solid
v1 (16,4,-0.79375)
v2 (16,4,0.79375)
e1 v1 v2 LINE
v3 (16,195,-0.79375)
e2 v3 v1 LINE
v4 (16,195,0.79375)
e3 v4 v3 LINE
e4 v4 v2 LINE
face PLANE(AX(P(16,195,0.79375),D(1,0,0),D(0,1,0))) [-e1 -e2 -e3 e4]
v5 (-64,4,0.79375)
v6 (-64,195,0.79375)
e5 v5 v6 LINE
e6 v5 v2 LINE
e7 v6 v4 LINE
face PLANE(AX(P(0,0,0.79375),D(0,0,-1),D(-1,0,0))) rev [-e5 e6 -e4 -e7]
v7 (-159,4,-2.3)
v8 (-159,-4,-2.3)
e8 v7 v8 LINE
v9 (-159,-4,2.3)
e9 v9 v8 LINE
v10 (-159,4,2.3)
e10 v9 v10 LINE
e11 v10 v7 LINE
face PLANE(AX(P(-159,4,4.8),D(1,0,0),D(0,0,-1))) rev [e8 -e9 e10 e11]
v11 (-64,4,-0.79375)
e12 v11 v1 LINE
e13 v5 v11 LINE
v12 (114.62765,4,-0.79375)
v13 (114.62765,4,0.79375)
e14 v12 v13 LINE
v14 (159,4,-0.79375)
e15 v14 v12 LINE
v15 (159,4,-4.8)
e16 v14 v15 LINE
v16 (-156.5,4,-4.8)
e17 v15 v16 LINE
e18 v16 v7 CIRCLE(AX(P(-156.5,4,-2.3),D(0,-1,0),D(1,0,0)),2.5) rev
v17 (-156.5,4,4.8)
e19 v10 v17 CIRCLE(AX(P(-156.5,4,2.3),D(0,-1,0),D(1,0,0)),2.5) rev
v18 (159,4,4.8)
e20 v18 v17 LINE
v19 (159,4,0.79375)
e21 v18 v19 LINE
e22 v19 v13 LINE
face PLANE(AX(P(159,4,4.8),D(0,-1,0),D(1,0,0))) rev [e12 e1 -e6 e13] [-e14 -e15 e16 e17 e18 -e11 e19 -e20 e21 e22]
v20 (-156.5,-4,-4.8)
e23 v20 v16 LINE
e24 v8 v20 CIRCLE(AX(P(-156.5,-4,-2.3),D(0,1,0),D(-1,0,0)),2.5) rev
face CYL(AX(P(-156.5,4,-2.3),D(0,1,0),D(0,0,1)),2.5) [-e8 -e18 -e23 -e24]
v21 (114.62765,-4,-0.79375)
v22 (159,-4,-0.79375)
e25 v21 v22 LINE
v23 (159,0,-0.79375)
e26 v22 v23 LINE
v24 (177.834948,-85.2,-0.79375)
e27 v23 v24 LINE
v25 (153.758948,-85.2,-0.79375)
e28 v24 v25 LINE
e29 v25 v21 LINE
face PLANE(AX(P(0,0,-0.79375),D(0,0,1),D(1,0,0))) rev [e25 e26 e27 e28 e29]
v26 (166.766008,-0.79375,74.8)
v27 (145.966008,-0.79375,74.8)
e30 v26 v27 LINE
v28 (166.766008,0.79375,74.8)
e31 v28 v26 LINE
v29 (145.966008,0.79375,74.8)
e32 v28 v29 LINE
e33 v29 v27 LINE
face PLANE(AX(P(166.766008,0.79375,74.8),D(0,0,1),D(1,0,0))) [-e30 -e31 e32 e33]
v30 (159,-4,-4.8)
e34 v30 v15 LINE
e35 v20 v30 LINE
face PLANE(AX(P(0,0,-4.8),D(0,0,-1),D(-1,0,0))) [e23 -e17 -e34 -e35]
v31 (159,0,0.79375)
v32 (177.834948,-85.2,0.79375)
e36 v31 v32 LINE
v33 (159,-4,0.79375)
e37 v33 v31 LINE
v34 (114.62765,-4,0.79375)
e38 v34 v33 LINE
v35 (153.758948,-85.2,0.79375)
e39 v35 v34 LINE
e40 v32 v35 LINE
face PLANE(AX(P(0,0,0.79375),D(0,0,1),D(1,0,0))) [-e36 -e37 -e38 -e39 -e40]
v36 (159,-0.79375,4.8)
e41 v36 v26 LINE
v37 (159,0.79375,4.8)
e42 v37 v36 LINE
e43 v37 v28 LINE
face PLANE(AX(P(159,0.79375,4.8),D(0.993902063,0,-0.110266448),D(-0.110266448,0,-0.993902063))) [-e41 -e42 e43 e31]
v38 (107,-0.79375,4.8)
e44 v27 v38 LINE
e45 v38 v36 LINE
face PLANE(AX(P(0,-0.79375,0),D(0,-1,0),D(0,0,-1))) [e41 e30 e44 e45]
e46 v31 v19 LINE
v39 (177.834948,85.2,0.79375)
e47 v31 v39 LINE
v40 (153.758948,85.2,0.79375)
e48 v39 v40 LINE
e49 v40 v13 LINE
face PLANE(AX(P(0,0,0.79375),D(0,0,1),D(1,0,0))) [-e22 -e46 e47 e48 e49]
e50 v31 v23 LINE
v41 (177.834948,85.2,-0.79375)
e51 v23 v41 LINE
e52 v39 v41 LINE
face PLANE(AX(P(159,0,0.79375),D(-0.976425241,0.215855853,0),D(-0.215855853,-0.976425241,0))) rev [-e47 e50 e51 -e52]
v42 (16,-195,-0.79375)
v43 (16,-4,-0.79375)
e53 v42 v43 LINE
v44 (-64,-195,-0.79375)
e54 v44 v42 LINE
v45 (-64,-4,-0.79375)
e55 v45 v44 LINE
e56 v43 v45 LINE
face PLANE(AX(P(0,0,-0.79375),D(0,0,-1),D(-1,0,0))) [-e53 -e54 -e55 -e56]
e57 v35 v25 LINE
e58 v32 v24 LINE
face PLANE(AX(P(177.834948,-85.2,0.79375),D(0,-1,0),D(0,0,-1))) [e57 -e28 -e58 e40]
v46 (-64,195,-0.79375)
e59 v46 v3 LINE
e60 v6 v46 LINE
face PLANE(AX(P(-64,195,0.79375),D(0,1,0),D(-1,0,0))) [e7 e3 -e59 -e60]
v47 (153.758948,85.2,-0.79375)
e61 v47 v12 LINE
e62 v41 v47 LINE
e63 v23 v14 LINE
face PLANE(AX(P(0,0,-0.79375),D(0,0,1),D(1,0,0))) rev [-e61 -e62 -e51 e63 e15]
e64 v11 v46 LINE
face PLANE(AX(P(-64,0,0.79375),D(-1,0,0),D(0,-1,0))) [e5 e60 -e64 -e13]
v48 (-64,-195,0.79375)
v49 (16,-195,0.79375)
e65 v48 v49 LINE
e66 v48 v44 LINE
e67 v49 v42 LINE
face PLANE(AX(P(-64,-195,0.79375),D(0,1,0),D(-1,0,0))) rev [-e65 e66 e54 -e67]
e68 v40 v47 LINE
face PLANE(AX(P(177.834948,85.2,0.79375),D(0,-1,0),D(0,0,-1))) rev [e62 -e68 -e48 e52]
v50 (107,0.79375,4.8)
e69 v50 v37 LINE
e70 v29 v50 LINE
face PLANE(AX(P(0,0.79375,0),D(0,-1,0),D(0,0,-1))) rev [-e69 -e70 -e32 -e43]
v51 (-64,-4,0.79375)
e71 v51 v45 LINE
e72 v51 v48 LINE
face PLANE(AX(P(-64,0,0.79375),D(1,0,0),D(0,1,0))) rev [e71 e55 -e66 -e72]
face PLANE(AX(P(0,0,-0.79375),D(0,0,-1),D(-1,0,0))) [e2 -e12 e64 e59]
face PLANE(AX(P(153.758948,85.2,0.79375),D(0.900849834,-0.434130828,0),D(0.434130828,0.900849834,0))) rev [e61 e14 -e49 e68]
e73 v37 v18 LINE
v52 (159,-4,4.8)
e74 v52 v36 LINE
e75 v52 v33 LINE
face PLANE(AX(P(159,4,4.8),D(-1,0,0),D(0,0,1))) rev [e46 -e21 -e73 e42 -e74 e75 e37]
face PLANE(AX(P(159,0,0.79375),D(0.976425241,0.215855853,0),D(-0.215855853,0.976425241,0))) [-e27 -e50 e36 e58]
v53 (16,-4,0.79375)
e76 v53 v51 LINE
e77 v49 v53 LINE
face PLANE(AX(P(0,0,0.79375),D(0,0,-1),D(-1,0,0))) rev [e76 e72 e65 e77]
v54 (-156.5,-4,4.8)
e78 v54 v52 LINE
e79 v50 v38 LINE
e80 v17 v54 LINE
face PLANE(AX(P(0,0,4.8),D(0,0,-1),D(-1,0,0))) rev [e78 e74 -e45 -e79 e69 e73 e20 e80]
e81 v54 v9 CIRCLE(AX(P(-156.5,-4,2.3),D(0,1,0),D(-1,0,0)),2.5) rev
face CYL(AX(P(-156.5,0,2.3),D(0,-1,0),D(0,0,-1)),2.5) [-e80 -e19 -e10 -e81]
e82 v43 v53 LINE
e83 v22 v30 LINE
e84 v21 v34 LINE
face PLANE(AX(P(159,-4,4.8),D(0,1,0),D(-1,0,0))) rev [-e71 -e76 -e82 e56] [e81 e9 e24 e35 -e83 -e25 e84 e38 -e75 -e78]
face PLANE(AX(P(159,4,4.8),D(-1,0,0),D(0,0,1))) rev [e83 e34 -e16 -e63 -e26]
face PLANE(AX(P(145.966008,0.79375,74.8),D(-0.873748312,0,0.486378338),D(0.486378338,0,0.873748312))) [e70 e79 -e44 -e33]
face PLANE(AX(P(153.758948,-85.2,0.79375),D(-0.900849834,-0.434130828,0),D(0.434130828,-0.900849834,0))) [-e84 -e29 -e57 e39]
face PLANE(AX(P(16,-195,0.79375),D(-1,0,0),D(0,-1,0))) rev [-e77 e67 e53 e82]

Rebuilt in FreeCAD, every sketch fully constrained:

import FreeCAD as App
import Part
import Sketcher
from FreeCAD import Vector
Q = App.Units.Quantity


def edges_at(feature, points):
    """Names of the edges that pass closest to the given points."""
    edges = feature.Shape.Edges
    near = lambda p: min(range(len(edges)), key=lambda i: edges[i].distToShape(Part.Vertex(*p))[0])
    return sorted({f"Edge{near(p) + 1}" for p in points})

doc = App.newDocument("Part")
body = doc.addObject("PartDesign::Body", "Body")

# Sketch on XY plane
sketch1 = body.newObject("Sketcher::SketchObject", "Sketch")
sketch1.AttachmentSupport = (doc.getObject("XY_Plane"), [""])
sketch1.MapMode = "FlatFace"
sketch1.addGeometry([
    Part.LineSegment(Vector(-159, 4, 0), Vector(-159, -4, 0)),
    Part.LineSegment(Vector(-159, -4, 0), Vector(159, -4, 0)),
    Part.LineSegment(Vector(159, -4, 0), Vector(159, 4, 0)),
    Part.LineSegment(Vector(159, 4, 0), Vector(-159, 4, 0)),
], False)
sketch1.addConstraint([
    Sketcher.Constraint("Coincident", 0, 2, 1, 1),
    Sketcher.Constraint("Coincident", 1, 2, 2, 1),
    Sketcher.Constraint("Coincident", 2, 2, 3, 1),
    Sketcher.Constraint("Coincident", 3, 2, 0, 1),
    Sketcher.Constraint("Vertical", 0),
    Sketcher.Constraint("Horizontal", 1),
    Sketcher.Constraint("Vertical", 2),
    Sketcher.Constraint("Horizontal", 3),
    Sketcher.Constraint("Symmetric", 0, 2, 2, 2, -1, 1),
    Sketcher.Constraint("DistanceX", 1, 1, 1, 2, 318.0),
    Sketcher.Constraint("DistanceY", 0, 2, 0, 1, 8.0),
])
pad1 = body.newObject("PartDesign::Pad", "Pad")
pad1.Profile = sketch1
pad1.Length = 9.6
pad1.Midplane = True

# Sketch on XY plane
sketch2 = body.newObject("Sketcher::SketchObject", "Sketch001")
sketch2.AttachmentSupport = (doc.getObject("XY_Plane"), [""])
sketch2.MapMode = "FlatFace"
sketch2.addGeometry([
    Part.LineSegment(Vector(-64, 195, 0), Vector(-64, 0, 0)),
    Part.LineSegment(Vector(-64, 0, 0), Vector(16, 0, 0)),
    Part.LineSegment(Vector(16, 0, 0), Vector(16, 195, 0)),
    Part.LineSegment(Vector(16, 195, 0), Vector(-64, 195, 0)),
], False)
sketch2.addConstraint([
    Sketcher.Constraint("Coincident", 0, 2, 1, 1),
    Sketcher.Constraint("Coincident", 1, 2, 2, 1),
    Sketcher.Constraint("Coincident", 2, 2, 3, 1),
    Sketcher.Constraint("Coincident", 3, 2, 0, 1),
    Sketcher.Constraint("Vertical", 0),
    Sketcher.Constraint("Horizontal", 1),
    Sketcher.Constraint("Vertical", 2),
    Sketcher.Constraint("Horizontal", 3),
    Sketcher.Constraint("PointOnObject", 0, 2, -1),
    Sketcher.Constraint("DistanceX", 1, 1, 1, 2, 80.0),
    Sketcher.Constraint("DistanceY", 0, 2, 0, 1, 195.0),
    Sketcher.Constraint("DistanceX", 0, 2, -1, 1, 64.0),
])
pad2 = body.newObject("PartDesign::Pad", "Pad001")
pad2.Profile = sketch2
pad2.Length = 1.5875
pad2.Midplane = True
doc.recompute()

mirrored = body.newObject("PartDesign::Mirrored", "Mirrored")
mirrored.Originals = [pad2]
mirrored.MirrorPlane = (doc.getObject("XZ_Plane"), [""])
body.Tip = mirrored

# Sketch on XZ plane
sketch3 = body.newObject("Sketcher::SketchObject", "Sketch002")
sketch3.AttachmentSupport = (doc.getObject("XZ_Plane"), [""])
sketch3.MapMode = "FlatFace"
sketch3.addGeometry([
    Part.LineSegment(Vector(167, 75, 0), Vector(159, 5, 0)),
    Part.LineSegment(Vector(159, 5, 0), Vector(107, 5, 0)),
    Part.LineSegment(Vector(107, 5, 0), Vector(146, 75, 0)),
    Part.LineSegment(Vector(146, 75, 0), Vector(167, 75, 0)),
], False)
sketch3.addConstraint([
    Sketcher.Constraint("Coincident", 0, 2, 1, 1),
    Sketcher.Constraint("Coincident", 1, 2, 2, 1),
    Sketcher.Constraint("Coincident", 2, 2, 3, 1),
    Sketcher.Constraint("Coincident", 3, 2, 0, 1),
    Sketcher.Constraint("Horizontal", 1),
    Sketcher.Constraint("Horizontal", 3),
    Sketcher.Constraint("DistanceX", 1, 2, 1, 1, 52.0),
    Sketcher.Constraint("DistanceX", 3, 1, 3, 2, 20.8),
    Sketcher.Constraint("DistanceX", -1, 1, 0, 2, 159.0),
    Sketcher.Constraint("DistanceY", 0, 2, 2, 2, 70.0),
    Sketcher.Constraint("DistanceY", -1, 1, 0, 2, 4.8),
    Sketcher.Constraint("Distance", 0, 70.429475),
])
pad3 = body.newObject("PartDesign::Pad", "Pad002")
pad3.Profile = sketch3
pad3.Length = 1.5875
pad3.Midplane = True

# Sketch on XY plane
sketch4 = body.newObject("Sketcher::SketchObject", "Sketch003")
sketch4.AttachmentSupport = (doc.getObject("XY_Plane"), [""])
sketch4.MapMode = "FlatFace"
sketch4.addGeometry([
    Part.LineSegment(Vector(159, 0, 0), Vector(178, 85, 0)),
    Part.LineSegment(Vector(178, 85, 0), Vector(154, 85, 0)),
    Part.LineSegment(Vector(154, 85, 0), Vector(113, 0, 0)),
    Part.LineSegment(Vector(113, 0, 0), Vector(159, 0, 0)),
], False)
sketch4.addConstraint([
    Sketcher.Constraint("Coincident", 0, 2, 1, 1),
    Sketcher.Constraint("Coincident", 1, 2, 2, 1),
    Sketcher.Constraint("Coincident", 2, 2, 3, 1),
    Sketcher.Constraint("Coincident", 3, 2, 0, 1),
    Sketcher.Constraint("Horizontal", 1),
    Sketcher.Constraint("Horizontal", 3),
    Sketcher.Constraint("PointOnObject", 2, 2, -1),
    Sketcher.Constraint("DistanceX", 3, 1, 3, 2, 46.3),
    Sketcher.Constraint("DistanceX", -1, 1, 3, 2, 159.0),
    Sketcher.Constraint("DistanceY", -1, 1, 0, 2, 85.2),
    Sketcher.Constraint("Angle", 2, Q("-115.73 deg")),
    Sketcher.Constraint("DistanceX", 1, 2, 1, 1, 24.076),
])
pad4 = body.newObject("PartDesign::Pad", "Pad003")
pad4.Profile = sketch4
pad4.Length = 1.5875
pad4.Midplane = True
doc.recompute()

mirrored2 = body.newObject("PartDesign::Mirrored", "Mirrored001")
mirrored2.Originals = [pad4]
mirrored2.MirrorPlane = (doc.getObject("XZ_Plane"), [""])
body.Tip = mirrored2
doc.recompute()

fillet = body.newObject("PartDesign::Fillet", "Fillet")
fillet.Base = (mirrored2, edges_at(mirrored2, [(-159, 0, 4.8), (-159, 0, -4.8)]))
fillet.Radius = 2.5

doc.recompute()
